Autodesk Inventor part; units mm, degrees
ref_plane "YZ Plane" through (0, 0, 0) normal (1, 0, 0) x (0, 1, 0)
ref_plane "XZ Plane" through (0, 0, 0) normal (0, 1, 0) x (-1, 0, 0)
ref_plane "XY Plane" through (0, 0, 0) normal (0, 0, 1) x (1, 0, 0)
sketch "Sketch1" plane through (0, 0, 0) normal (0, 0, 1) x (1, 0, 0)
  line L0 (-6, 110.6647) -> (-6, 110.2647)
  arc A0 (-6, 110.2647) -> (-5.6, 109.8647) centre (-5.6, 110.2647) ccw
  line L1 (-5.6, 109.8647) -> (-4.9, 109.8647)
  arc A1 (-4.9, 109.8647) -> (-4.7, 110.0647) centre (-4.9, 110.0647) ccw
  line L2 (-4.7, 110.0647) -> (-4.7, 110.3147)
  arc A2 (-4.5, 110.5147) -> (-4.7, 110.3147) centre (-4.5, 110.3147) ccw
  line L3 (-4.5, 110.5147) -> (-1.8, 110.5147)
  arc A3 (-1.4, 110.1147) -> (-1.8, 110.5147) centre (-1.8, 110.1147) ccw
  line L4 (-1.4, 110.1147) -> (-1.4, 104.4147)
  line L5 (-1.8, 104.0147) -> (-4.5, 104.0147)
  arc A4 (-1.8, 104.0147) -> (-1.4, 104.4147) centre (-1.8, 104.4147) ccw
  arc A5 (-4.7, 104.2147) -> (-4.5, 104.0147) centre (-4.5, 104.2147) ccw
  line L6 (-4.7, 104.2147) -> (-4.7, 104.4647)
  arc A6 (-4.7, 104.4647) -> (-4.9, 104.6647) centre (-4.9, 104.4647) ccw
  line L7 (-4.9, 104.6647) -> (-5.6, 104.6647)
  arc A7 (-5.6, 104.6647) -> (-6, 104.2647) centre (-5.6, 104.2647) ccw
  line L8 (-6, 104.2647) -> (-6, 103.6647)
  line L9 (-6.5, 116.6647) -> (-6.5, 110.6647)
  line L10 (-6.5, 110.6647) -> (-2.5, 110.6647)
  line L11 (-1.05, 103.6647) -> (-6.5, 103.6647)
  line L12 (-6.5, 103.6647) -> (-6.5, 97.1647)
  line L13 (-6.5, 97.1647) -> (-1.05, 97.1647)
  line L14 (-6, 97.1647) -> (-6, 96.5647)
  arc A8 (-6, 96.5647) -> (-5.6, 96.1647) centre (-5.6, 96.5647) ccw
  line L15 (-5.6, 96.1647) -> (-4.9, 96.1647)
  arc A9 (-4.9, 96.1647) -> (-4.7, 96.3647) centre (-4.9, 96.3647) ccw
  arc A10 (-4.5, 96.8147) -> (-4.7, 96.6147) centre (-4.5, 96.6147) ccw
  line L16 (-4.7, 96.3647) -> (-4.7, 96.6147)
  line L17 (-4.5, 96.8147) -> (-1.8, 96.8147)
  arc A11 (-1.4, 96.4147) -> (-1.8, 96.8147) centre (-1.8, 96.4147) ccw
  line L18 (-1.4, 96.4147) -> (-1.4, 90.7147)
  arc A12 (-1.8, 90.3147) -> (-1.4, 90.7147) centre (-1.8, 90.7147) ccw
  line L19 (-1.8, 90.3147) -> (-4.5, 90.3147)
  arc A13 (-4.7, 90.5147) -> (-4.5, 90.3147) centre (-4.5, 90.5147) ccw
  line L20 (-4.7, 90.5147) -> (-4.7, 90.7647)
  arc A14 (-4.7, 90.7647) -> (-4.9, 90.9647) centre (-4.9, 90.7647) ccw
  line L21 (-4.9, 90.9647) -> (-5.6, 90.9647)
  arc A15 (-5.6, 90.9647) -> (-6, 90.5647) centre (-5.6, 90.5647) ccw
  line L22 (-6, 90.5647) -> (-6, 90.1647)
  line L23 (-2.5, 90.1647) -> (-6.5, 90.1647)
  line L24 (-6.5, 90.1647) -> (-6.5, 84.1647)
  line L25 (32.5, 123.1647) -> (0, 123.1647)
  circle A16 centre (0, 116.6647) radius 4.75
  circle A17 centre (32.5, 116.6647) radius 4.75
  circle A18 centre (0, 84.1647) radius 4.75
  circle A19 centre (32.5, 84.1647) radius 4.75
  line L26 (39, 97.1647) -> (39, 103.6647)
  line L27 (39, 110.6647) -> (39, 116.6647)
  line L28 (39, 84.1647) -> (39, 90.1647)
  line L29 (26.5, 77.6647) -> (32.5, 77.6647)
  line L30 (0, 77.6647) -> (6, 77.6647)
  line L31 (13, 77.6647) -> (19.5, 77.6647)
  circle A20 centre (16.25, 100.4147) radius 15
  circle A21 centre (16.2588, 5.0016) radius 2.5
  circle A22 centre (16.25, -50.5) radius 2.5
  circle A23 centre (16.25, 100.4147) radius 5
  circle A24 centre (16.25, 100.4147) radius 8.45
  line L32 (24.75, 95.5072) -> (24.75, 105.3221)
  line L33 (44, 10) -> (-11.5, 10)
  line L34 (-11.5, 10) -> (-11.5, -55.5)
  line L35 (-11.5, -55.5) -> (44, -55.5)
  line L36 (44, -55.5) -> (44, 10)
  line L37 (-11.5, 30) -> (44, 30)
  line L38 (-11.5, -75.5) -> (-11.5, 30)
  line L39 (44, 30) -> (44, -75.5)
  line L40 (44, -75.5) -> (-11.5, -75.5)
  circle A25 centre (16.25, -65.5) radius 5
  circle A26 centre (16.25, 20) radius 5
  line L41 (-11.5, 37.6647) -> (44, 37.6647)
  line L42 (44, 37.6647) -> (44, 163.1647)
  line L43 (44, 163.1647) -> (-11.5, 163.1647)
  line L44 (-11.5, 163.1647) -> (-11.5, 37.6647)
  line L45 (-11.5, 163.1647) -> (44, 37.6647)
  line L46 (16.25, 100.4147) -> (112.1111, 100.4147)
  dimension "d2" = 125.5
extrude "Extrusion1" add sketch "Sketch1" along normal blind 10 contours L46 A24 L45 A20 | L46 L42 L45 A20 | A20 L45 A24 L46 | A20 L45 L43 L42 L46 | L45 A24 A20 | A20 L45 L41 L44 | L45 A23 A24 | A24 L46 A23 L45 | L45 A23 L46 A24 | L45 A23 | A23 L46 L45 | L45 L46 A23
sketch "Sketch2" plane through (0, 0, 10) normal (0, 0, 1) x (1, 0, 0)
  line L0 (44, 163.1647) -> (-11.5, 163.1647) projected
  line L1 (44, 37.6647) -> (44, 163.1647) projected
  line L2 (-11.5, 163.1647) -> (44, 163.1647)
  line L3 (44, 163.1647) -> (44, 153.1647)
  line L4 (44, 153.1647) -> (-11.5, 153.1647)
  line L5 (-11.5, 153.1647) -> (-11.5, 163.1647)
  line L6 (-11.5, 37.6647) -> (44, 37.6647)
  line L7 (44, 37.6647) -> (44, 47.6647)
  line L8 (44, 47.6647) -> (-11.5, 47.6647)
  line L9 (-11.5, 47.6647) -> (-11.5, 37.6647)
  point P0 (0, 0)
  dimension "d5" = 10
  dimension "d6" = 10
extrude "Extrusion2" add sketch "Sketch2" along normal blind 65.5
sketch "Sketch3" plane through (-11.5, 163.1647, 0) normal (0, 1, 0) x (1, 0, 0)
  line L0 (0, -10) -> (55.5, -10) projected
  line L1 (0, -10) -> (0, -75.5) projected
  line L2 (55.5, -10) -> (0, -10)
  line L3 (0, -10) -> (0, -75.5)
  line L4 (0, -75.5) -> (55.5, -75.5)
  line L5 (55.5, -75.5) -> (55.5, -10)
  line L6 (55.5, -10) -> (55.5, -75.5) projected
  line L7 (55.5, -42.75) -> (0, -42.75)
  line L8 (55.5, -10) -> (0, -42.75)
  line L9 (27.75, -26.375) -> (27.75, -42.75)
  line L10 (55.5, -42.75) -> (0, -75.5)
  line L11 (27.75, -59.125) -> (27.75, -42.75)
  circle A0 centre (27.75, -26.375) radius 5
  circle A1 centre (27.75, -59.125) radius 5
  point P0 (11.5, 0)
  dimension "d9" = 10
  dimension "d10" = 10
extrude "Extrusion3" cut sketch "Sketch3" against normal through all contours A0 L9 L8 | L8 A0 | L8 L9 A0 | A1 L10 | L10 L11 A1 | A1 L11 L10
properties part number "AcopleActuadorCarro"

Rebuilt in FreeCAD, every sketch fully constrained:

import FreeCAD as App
import Part
import Sketcher
from FreeCAD import Vector

doc = App.newDocument("Part")
body = doc.addObject("PartDesign::Body", "Body")

# Sketch on XY plane
sketch1 = body.newObject("Sketcher::SketchObject", "Sketch")
sketch1.AttachmentSupport = (doc.getObject("XY_Plane"), [""])
sketch1.MapMode = "FlatFace"
sketch1.addGeometry([
    Part.LineSegment(Vector(44, 163.2, 0), Vector(-11.5, 163.2, 0)),  # 0
    Part.LineSegment(Vector(-11.5, 163.2, 0), Vector(-11.5, 37.7, 0)),  # 1
    Part.LineSegment(Vector(-11.5, 37.7, 0), Vector(44, 37.7, 0)),  # 2
    Part.LineSegment(Vector(44, 37.7, 0), Vector(44, 163.2, 0)),  # 3
    Part.Circle(Vector(32.5, 116.7, 0), Vector(0, 0, 1), 4.8),  # 4
    Part.Circle(Vector(32.5, 84.2, 0), Vector(0, 0, 1), 4.8),  # 5
    Part.Circle(Vector(0, 116.7, 0), Vector(0, 0, 1), 4.8),  # 6
    Part.Circle(Vector(0, 84.2, 0), Vector(0, 0, 1), 4.8),  # 7
], False)
sketch1.addConstraint([
    Sketcher.Constraint("Coincident", 0, 2, 1, 1),
    Sketcher.Constraint("Coincident", 1, 2, 2, 1),
    Sketcher.Constraint("Coincident", 2, 2, 3, 1),
    Sketcher.Constraint("Coincident", 3, 2, 0, 1),
    Sketcher.Constraint("Horizontal", 0),
    Sketcher.Constraint("Vertical", 1),
    Sketcher.Constraint("Horizontal", 2),
    Sketcher.Constraint("Vertical", 3),
    Sketcher.Constraint("Equal", 4, 5),
    Sketcher.Constraint("Equal", 5, 6),
    Sketcher.Constraint("Equal", 6, 7),
    Sketcher.Constraint("PointOnObject", 6, 3, -2),
    Sketcher.Constraint("PointOnObject", 7, 3, -2),
    Sketcher.Constraint("Horizontal", 4, 3, 6, 3),
    Sketcher.Constraint("Horizontal", 5, 3, 7, 3),
    Sketcher.Constraint("Vertical", 4, 3, 5, 3),
    Sketcher.Constraint("DistanceY", 1, 2, 1, 1, 125.5),
    Sketcher.Constraint("Diameter", 4, 9.5),
    Sketcher.Constraint("DistanceX", 0, 2, 0, 1, 55.5),
    Sketcher.Constraint("DistanceX", -1, 1, 2, 2, 44.0),
    Sketcher.Constraint("DistanceX", 0, 2, 4, 3, 44.0),
    Sketcher.Constraint("DistanceY", 7, 3, 0, 2, 79.0),
    Sketcher.Constraint("DistanceY", 1, 2, 6, 3, 79.0),
    Sketcher.Constraint("DistanceY", -1, 1, 4, 3, 116.6647),
])
pad1 = body.newObject("PartDesign::Pad", "Pad")
pad1.Profile = sketch1
pad1.Length = 10

# Sketch on XY plane
sketch2 = body.newObject("Sketcher::SketchObject", "Sketch001")
sketch2.AttachmentSupport = (doc.getObject("XY_Plane"), [""])
sketch2.MapMode = "FlatFace"
sketch2.AttachmentOffset = App.Placement(Vector(0, 0, 10), App.Rotation())
sketch2.addGeometry([
    Part.LineSegment(Vector(44, 153, 0), Vector(44, 163, 0)),  # 0
    Part.LineSegment(Vector(44, 163, 0), Vector(-12, 163, 0)),  # 1
    Part.LineSegment(Vector(-12, 163, 0), Vector(-12, 153, 0)),  # 2
    Part.LineSegment(Vector(-12, 153, 0), Vector(44, 153, 0)),  # 3
    Part.LineSegment(Vector(44, 38, 0), Vector(44, 48, 0)),  # 4
    Part.LineSegment(Vector(44, 48, 0), Vector(-12, 48, 0)),  # 5
    Part.LineSegment(Vector(-12, 48, 0), Vector(-12, 38, 0)),  # 6
    Part.LineSegment(Vector(-12, 38, 0), Vector(44, 38, 0)),  # 7
], False)
sketch2.addConstraint([
    Sketcher.Constraint("Coincident", 0, 2, 1, 1),
    Sketcher.Constraint("Coincident", 1, 2, 2, 1),
    Sketcher.Constraint("Coincident", 2, 2, 3, 1),
    Sketcher.Constraint("Coincident", 3, 2, 0, 1),
    Sketcher.Constraint("Coincident", 4, 2, 5, 1),
    Sketcher.Constraint("Coincident", 5, 2, 6, 1),
    Sketcher.Constraint("Coincident", 6, 2, 7, 1),
    Sketcher.Constraint("Coincident", 7, 2, 4, 1),
    Sketcher.Constraint("Vertical", 0),
    Sketcher.Constraint("Horizontal", 1),
    Sketcher.Constraint("Vertical", 2),
    Sketcher.Constraint("Horizontal", 3),
    Sketcher.Constraint("Vertical", 4),
    Sketcher.Constraint("Horizontal", 5),
    Sketcher.Constraint("Vertical", 6),
    Sketcher.Constraint("Horizontal", 7),
    Sketcher.Constraint("Vertical", 3, 2, 4, 2),
    Sketcher.Constraint("Vertical", 2, 2, 5, 2),
    Sketcher.Constraint("Equal", 2, 4),
    Sketcher.Constraint("DistanceY", 0, 1, 0, 2, 10.0),
    Sketcher.Constraint("DistanceX", 1, 2, 1, 1, 55.5),
    Sketcher.Constraint("DistanceX", -1, 1, 0, 2, 44.0),
    Sketcher.Constraint("DistanceY", 4, 2, 3, 2, 105.5),
    Sketcher.Constraint("DistanceY", -1, 1, 0, 2, 163.1647),
])
pad2 = body.newObject("PartDesign::Pad", "Pad001")
pad2.Profile = sketch2
pad2.Length = 65.5

# Sketch on XZ plane
sketch3 = body.newObject("Sketcher::SketchObject", "Sketch002")
sketch3.AttachmentSupport = (doc.getObject("XZ_Plane"), [""])
sketch3.MapMode = "FlatFace"
sketch3.AttachmentOffset = App.Placement(Vector(0, 0, -163.1647), App.Rotation())
sketch3.addGeometry([
    Part.Circle(Vector(16, 26, 0), Vector(0, 0, 1), 5),
    Part.Circle(Vector(16, 59, 0), Vector(0, 0, 1), 5),
], False)
sketch3.addConstraint([
    Sketcher.Constraint("Equal", 0, 1),
    Sketcher.Constraint("Vertical", 0, 3, 1, 3),
    Sketcher.Constraint("Diameter", 0, 10.0),
    Sketcher.Constraint("DistanceX", -1, 1, 0, 3, 16.25),
    Sketcher.Constraint("DistanceY", 0, 3, 1, 3, 32.75),
    Sketcher.Constraint("DistanceY", -1, 1, 0, 3, 26.375),
])
pocket1 = body.newObject("PartDesign::Pocket", "Pocket")
pocket1.Profile = sketch3
pocket1.Type = "ThroughAll"
pocket1.Reversed = True

doc.recompute()
